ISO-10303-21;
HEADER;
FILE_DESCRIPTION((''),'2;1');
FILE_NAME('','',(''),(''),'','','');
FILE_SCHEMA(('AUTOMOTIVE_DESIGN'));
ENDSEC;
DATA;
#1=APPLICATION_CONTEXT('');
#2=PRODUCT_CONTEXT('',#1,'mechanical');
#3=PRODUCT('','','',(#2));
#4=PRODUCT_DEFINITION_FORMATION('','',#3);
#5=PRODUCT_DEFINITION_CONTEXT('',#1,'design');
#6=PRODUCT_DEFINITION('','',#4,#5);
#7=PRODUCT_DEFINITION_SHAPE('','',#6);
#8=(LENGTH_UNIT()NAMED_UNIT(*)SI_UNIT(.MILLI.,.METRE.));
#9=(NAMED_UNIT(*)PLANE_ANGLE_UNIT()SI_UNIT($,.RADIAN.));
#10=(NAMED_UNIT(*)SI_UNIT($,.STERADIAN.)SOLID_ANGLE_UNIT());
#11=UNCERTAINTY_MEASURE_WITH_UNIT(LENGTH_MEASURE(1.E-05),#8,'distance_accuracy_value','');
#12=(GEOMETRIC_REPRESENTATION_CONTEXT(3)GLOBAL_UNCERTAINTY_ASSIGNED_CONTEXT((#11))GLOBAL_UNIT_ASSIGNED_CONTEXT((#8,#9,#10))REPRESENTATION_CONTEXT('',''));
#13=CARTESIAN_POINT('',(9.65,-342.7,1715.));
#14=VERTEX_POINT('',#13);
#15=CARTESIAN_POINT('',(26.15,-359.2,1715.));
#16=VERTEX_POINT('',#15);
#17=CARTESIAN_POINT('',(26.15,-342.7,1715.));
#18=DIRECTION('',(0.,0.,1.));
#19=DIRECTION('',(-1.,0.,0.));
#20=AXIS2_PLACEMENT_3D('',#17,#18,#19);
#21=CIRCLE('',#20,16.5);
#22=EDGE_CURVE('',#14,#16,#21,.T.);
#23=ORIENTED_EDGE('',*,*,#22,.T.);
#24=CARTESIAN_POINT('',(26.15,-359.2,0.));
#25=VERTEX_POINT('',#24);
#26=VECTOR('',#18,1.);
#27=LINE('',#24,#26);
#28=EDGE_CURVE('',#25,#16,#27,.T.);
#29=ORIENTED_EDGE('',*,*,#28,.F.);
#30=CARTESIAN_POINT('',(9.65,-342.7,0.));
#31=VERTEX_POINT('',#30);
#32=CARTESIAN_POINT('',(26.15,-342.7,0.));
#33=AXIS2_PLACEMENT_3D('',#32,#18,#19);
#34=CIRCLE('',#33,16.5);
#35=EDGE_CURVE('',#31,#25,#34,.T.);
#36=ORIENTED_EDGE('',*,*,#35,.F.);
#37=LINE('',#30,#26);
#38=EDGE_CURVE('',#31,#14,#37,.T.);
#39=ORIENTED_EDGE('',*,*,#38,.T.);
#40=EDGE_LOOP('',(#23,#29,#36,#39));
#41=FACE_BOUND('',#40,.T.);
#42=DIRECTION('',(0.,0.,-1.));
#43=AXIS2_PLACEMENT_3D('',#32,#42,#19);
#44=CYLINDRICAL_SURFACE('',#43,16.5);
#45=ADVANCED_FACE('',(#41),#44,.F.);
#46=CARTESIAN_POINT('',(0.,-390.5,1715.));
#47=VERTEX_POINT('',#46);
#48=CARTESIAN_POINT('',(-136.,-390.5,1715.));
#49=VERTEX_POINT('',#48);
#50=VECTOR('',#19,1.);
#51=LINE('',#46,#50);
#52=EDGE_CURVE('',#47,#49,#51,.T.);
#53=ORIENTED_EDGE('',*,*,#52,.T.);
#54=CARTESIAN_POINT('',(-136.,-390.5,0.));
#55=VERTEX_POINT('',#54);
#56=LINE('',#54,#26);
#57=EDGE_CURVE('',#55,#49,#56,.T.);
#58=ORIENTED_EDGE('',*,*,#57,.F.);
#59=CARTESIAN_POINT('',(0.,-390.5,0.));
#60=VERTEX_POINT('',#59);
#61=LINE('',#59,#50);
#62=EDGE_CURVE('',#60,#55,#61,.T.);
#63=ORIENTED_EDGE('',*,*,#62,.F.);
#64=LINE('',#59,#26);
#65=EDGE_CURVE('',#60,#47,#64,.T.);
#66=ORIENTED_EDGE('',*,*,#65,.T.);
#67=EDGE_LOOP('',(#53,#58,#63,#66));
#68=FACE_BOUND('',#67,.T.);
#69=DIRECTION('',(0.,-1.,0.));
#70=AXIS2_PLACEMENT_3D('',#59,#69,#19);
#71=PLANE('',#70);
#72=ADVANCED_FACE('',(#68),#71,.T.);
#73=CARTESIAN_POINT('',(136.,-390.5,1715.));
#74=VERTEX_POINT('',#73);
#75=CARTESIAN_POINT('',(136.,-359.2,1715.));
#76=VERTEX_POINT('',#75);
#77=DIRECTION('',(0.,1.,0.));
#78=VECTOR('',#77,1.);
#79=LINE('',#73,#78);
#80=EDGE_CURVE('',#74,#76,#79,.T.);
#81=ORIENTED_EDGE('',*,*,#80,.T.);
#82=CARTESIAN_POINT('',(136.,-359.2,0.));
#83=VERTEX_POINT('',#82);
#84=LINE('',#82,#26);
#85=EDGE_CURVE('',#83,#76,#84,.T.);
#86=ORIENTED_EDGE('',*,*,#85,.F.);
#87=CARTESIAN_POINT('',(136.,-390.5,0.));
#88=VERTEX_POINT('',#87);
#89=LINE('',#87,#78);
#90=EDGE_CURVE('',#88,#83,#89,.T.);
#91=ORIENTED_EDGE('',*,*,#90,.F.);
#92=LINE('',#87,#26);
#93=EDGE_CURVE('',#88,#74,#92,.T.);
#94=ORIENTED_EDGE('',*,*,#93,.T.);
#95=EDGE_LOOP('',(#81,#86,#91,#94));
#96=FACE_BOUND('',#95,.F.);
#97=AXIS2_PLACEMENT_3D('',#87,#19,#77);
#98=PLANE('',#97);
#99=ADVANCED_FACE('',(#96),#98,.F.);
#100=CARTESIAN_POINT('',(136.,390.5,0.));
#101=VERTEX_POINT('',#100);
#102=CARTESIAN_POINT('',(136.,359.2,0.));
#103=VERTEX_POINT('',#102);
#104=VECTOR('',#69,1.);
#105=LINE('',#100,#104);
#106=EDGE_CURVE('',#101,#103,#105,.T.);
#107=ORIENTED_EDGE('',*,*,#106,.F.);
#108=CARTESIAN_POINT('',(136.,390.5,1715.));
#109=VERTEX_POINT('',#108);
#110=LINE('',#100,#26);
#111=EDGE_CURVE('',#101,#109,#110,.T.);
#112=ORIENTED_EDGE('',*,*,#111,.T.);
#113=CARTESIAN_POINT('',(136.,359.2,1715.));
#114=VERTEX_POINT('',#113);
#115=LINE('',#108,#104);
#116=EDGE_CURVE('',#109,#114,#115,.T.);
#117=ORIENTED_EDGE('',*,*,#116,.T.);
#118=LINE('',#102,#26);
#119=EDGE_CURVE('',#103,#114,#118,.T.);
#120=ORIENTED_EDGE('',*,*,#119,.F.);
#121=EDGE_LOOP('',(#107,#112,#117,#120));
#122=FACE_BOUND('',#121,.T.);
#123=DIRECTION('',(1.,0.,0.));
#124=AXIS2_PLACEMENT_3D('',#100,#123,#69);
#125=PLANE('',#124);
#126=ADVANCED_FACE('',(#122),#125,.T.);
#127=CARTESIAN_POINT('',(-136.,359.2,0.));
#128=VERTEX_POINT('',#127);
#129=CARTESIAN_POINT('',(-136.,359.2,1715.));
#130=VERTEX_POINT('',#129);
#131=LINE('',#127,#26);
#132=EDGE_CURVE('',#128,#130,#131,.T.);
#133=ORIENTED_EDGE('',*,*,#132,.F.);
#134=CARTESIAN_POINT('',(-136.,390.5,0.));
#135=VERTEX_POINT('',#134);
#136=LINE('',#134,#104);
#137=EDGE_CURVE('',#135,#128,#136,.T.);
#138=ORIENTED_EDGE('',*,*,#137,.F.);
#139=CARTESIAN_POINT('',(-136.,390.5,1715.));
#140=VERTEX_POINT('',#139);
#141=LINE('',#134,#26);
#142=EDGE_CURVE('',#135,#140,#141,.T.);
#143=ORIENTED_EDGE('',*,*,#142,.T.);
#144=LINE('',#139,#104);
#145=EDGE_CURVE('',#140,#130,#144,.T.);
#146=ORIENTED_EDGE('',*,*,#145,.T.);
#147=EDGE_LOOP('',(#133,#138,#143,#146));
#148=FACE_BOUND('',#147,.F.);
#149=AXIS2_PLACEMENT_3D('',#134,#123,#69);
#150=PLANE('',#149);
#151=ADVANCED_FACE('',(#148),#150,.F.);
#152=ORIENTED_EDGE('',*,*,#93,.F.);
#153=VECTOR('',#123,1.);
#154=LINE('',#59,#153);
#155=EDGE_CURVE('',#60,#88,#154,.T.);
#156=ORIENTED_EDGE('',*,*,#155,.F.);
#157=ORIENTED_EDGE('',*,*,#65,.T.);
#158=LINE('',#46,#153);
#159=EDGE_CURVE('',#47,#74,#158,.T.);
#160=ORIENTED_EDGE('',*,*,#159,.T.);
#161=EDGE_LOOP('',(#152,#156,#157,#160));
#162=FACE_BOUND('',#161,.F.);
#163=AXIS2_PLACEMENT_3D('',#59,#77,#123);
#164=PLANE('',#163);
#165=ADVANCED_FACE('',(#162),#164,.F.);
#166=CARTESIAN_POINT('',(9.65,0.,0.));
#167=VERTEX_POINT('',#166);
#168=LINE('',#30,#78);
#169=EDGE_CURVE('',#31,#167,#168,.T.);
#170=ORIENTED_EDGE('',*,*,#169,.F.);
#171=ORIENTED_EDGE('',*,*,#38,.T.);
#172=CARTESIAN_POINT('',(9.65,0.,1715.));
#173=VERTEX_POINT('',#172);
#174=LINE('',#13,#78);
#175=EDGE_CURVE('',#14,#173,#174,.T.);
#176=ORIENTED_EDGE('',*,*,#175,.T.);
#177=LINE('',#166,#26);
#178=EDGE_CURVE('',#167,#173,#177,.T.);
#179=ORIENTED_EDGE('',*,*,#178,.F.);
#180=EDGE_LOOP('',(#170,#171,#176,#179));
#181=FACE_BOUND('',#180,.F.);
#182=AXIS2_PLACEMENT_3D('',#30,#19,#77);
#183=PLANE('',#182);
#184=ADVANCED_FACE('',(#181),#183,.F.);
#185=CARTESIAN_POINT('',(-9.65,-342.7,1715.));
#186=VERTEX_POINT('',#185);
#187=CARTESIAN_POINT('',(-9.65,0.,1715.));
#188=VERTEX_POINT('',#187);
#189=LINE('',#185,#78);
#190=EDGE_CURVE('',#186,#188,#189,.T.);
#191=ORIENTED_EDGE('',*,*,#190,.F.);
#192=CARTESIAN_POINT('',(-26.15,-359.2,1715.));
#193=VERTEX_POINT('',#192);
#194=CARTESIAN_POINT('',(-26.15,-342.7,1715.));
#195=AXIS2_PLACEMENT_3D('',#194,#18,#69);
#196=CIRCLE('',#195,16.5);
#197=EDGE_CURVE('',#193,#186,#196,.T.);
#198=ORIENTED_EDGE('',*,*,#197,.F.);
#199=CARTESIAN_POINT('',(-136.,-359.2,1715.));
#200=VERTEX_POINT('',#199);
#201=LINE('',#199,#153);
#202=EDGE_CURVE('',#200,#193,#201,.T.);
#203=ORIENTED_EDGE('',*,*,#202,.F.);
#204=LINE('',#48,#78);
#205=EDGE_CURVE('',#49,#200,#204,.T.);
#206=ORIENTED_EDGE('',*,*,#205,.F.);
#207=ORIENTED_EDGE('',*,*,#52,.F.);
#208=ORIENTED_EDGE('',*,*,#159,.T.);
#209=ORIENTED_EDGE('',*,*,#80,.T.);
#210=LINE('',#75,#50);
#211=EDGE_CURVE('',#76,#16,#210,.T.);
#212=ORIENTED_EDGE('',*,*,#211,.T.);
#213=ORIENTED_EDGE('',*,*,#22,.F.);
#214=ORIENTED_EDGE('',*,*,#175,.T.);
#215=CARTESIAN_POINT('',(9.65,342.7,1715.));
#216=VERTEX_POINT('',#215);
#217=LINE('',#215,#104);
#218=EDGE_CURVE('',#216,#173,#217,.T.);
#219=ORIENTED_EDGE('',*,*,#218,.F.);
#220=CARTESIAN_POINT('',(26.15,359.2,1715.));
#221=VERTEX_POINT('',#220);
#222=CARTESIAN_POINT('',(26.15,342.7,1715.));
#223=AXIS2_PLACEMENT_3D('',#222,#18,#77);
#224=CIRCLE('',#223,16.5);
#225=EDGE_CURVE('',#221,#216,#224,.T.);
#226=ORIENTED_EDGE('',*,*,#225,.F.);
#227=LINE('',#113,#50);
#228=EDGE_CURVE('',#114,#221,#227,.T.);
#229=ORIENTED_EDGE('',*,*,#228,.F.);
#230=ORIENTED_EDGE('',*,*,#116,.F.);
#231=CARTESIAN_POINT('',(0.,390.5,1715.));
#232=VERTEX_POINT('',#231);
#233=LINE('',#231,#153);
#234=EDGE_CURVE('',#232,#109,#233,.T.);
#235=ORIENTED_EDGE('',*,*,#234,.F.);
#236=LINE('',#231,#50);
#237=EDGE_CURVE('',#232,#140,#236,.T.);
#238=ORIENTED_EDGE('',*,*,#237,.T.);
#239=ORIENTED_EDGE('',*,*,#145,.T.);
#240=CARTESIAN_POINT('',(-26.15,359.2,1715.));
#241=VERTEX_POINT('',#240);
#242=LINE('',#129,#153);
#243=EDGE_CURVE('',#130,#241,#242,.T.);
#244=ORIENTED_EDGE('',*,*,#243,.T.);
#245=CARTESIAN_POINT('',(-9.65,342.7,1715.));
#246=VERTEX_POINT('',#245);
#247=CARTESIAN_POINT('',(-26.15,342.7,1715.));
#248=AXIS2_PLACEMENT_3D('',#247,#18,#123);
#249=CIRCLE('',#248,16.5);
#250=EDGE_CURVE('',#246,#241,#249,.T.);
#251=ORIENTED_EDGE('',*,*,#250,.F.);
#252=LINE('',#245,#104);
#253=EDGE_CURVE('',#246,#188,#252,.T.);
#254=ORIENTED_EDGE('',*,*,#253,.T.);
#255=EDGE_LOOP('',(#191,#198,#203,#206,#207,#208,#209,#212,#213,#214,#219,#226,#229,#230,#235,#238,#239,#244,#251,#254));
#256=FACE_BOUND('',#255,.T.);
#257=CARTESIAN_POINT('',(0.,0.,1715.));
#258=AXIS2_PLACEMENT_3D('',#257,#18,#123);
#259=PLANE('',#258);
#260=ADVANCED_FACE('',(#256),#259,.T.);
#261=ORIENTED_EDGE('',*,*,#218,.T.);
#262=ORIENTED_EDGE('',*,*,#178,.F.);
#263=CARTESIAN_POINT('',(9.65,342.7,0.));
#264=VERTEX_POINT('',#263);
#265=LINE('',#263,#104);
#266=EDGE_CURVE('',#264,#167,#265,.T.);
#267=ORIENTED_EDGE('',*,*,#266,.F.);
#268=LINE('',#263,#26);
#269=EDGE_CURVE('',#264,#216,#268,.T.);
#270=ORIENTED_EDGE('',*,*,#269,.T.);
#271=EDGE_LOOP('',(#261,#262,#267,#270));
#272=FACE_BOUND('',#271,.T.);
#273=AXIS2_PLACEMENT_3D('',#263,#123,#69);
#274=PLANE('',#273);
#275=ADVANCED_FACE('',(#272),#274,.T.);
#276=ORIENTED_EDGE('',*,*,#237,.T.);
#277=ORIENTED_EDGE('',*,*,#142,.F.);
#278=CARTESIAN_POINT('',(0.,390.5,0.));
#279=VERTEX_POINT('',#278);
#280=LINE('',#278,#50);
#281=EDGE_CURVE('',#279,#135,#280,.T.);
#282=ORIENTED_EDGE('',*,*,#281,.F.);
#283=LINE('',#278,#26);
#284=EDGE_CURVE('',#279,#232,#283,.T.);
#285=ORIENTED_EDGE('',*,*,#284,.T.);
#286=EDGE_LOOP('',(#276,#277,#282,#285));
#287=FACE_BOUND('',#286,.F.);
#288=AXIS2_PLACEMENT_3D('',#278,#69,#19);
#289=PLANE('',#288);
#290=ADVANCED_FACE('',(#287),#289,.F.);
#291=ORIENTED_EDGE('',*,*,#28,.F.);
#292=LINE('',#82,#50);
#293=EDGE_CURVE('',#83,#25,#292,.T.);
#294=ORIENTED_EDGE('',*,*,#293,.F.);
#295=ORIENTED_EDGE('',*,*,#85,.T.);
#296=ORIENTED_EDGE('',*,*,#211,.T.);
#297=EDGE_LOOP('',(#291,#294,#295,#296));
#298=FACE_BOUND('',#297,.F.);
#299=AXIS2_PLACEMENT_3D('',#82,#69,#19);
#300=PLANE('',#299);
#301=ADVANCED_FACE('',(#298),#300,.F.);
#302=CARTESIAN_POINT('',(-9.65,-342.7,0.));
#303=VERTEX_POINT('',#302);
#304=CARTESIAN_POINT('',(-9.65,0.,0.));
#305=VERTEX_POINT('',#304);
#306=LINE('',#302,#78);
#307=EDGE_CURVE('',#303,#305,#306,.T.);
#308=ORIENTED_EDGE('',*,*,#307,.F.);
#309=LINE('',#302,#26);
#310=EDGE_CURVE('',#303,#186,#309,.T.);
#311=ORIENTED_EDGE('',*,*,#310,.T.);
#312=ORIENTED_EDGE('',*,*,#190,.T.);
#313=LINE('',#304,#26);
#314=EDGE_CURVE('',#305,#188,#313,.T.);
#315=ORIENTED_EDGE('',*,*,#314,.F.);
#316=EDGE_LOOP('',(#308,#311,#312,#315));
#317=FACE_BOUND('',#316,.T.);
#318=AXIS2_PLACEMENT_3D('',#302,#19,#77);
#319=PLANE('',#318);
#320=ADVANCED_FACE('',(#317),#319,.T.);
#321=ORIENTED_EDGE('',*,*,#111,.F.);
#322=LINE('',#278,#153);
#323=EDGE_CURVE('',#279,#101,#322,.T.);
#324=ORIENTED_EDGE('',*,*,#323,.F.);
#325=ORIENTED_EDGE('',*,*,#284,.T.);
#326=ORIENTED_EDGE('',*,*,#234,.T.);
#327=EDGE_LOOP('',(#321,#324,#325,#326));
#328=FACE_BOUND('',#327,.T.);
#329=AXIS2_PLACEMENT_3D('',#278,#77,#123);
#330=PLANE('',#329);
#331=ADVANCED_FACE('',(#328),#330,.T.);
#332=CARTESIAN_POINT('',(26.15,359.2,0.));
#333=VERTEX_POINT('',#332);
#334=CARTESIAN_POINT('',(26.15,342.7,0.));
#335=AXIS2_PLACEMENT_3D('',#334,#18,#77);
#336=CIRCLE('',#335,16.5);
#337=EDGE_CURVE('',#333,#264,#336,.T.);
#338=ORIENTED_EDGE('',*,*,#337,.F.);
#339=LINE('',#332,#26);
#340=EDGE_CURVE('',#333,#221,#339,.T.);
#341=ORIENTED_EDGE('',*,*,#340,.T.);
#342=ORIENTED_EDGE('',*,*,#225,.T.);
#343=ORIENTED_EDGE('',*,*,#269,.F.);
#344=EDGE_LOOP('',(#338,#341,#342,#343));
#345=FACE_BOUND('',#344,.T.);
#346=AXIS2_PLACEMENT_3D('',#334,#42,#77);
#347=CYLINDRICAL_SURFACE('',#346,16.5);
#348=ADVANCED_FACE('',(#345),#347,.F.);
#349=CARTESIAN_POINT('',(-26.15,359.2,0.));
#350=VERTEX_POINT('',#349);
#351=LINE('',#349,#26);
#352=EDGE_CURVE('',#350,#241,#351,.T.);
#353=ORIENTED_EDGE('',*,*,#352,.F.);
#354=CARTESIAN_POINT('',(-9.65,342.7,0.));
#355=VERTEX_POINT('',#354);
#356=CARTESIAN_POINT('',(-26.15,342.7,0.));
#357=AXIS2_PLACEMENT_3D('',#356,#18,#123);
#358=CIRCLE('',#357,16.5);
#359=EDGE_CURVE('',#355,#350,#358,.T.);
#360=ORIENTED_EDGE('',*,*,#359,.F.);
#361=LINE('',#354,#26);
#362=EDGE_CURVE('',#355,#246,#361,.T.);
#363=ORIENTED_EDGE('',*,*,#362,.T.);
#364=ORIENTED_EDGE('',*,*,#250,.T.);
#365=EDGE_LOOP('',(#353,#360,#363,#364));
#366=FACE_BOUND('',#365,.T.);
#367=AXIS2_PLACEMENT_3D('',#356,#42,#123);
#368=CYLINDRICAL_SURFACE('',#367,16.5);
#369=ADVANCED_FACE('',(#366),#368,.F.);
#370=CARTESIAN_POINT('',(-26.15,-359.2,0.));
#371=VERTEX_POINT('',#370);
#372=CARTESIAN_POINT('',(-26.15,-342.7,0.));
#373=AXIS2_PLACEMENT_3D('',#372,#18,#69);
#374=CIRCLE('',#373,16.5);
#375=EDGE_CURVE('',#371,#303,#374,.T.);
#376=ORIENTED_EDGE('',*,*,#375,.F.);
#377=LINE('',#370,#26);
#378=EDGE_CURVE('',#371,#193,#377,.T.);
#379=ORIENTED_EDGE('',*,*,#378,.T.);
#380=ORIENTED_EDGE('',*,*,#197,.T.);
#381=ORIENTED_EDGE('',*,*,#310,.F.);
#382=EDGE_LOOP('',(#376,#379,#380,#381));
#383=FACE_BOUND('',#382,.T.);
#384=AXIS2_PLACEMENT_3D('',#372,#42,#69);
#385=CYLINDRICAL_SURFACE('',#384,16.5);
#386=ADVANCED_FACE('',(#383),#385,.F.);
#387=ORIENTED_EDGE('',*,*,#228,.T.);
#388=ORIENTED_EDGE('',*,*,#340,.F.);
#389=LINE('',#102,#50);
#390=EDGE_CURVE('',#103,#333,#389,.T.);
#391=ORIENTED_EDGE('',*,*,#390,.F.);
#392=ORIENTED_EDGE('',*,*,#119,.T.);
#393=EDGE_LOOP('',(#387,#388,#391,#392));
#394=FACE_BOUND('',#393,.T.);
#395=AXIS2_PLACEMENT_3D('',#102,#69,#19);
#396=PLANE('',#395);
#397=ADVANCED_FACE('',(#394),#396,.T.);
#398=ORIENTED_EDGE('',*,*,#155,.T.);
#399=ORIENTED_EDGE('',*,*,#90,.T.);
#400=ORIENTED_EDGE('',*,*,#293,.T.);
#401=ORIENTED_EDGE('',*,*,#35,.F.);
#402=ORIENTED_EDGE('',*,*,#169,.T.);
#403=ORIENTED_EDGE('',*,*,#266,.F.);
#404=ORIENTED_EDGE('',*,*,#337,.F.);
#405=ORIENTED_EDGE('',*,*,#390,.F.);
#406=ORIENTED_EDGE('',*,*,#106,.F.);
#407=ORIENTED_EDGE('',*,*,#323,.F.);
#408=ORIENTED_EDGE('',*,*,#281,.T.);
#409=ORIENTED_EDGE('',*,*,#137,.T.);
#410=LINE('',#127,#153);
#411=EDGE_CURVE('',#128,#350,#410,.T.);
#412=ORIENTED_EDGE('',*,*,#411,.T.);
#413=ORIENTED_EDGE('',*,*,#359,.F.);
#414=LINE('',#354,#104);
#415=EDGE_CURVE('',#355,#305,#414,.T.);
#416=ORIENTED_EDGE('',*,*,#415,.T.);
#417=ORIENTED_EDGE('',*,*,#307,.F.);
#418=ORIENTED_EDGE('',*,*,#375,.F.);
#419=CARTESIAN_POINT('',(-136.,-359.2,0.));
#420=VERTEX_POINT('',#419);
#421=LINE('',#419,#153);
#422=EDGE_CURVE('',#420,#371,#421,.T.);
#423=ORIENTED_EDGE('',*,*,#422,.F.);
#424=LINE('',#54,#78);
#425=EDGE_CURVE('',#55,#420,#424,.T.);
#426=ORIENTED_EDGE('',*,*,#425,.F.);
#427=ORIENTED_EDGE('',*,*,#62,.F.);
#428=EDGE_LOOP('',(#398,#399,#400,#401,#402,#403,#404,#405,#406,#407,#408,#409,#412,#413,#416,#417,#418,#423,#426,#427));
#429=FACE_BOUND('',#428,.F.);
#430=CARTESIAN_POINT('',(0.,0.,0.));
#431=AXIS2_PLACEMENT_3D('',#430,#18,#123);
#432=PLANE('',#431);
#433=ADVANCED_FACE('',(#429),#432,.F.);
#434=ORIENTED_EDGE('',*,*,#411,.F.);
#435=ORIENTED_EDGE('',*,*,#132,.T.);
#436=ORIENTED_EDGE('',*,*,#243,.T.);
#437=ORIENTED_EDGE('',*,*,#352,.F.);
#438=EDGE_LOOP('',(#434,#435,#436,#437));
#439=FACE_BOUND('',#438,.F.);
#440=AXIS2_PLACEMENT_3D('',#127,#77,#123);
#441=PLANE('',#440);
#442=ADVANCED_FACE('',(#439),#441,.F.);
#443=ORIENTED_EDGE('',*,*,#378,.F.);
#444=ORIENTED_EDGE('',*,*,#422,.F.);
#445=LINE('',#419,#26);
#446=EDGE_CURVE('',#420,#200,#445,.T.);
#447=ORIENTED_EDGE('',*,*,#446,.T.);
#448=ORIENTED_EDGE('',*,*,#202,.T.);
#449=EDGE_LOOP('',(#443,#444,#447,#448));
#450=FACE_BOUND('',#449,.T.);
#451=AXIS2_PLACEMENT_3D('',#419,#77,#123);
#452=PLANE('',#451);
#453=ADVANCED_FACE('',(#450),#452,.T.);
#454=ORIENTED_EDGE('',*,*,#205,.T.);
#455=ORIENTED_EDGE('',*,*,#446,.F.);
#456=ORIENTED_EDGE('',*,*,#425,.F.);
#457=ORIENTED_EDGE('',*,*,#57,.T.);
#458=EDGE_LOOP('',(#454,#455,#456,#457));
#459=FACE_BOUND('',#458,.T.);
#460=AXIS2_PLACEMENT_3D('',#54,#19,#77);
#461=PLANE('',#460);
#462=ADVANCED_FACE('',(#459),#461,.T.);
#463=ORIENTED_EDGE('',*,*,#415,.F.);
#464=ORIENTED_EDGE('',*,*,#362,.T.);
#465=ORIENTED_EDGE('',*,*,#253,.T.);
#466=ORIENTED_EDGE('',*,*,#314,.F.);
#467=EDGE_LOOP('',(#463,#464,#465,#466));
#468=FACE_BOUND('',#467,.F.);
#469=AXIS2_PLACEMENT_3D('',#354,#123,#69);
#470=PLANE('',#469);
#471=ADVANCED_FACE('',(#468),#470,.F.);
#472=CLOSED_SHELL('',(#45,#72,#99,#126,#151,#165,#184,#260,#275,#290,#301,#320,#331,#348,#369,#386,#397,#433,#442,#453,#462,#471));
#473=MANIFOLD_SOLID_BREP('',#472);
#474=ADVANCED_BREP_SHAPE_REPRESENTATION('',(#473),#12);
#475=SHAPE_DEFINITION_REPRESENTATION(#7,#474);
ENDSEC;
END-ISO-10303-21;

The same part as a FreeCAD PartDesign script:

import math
import FreeCAD as App
import Part
import Sketcher
from FreeCAD import Vector

doc = App.newDocument("Part")
body = doc.addObject("PartDesign::Body", "Body")

# Sketch on XY plane
sketch1 = body.newObject("Sketcher::SketchObject", "Sketch")
sketch1.AttachmentSupport = (doc.getObject("XY_Plane"), [""])
sketch1.MapMode = "FlatFace"
sketch1.addGeometry(Part.LineSegment(Vector(-136, -359.2, 0), Vector(-136, -390.5, 0)), False)
sketch1.addGeometry(Part.LineSegment(Vector(-136, -390.5, 0), Vector(136, -390.5, 0)), False)
sketch1.addGeometry(Part.LineSegment(Vector(136, -390.5, 0), Vector(136, -359.2, 0)), False)
sketch1.addGeometry(Part.LineSegment(Vector(136, -359.2, 0), Vector(26.15, -359.2, 0)), False)
sketch1.addGeometry(Part.ArcOfCircle(Part.Circle(Vector(26.15, -342.7, 0), Vector(0, 0, 1), 16.5), math.radians(180), math.radians(270)), False)
sketch1.addGeometry(Part.LineSegment(Vector(9.65, -342.7, 0), Vector(9.65, 342.7, 0)), False)
sketch1.addGeometry(Part.ArcOfCircle(Part.Circle(Vector(26.15, 342.7, 0), Vector(0, 0, 1), 16.5), math.radians(90), math.radians(180)), False)
sketch1.addGeometry(Part.LineSegment(Vector(26.15, 359.2, 0), Vector(136, 359.2, 0)), False)
sketch1.addGeometry(Part.LineSegment(Vector(136, 359.2, 0), Vector(136, 390.5, 0)), False)
sketch1.addGeometry(Part.LineSegment(Vector(136, 390.5, 0), Vector(-136, 390.5, 0)), False)
sketch1.addGeometry(Part.LineSegment(Vector(-136, 390.5, 0), Vector(-136, 359.2, 0)), False)
sketch1.addGeometry(Part.LineSegment(Vector(-136, 359.2, 0), Vector(-26.15, 359.2, 0)), False)
sketch1.addGeometry(Part.ArcOfCircle(Part.Circle(Vector(-26.15, 342.7, 0), Vector(0, 0, 1), 16.5), math.radians(0), math.radians(90)), False)
sketch1.addGeometry(Part.LineSegment(Vector(-9.65, 342.7, 0), Vector(-9.65, -342.7, 0)), False)
sketch1.addGeometry(Part.ArcOfCircle(Part.Circle(Vector(-26.15, -342.7, 0), Vector(0, 0, 1), 16.5), math.radians(-90), math.radians(0)), False)
sketch1.addGeometry(Part.LineSegment(Vector(-26.15, -359.2, 0), Vector(-136, -359.2, 0)), False)
sketch1.addConstraint(Sketcher.Constraint("Coincident", 0, 2, 1, 1))
sketch1.addConstraint(Sketcher.Constraint("Coincident", 1, 2, 2, 1))
sketch1.addConstraint(Sketcher.Constraint("Coincident", 2, 2, 3, 1))
sketch1.addConstraint(Sketcher.Constraint("Tangent", 3, 2, 4, 2))
sketch1.addConstraint(Sketcher.Constraint("Tangent", 4, 1, 5, 1))
sketch1.addConstraint(Sketcher.Constraint("Tangent", 5, 2, 6, 2))
sketch1.addConstraint(Sketcher.Constraint("Tangent", 6, 1, 7, 1))
sketch1.addConstraint(Sketcher.Constraint("Coincident", 7, 2, 8, 1))
sketch1.addConstraint(Sketcher.Constraint("Coincident", 8, 2, 9, 1))
sketch1.addConstraint(Sketcher.Constraint("Coincident", 9, 2, 10, 1))
sketch1.addConstraint(Sketcher.Constraint("Coincident", 10, 2, 11, 1))
sketch1.addConstraint(Sketcher.Constraint("Tangent", 11, 2, 12, 2))
sketch1.addConstraint(Sketcher.Constraint("Tangent", 12, 1, 13, 1))
sketch1.addConstraint(Sketcher.Constraint("Tangent", 13, 2, 14, 2))
sketch1.addConstraint(Sketcher.Constraint("Tangent", 14, 1, 15, 1))
sketch1.addConstraint(Sketcher.Constraint("Coincident", 15, 2, 0, 1))
sketch1.addConstraint(Sketcher.Constraint("Vertical", 0))
sketch1.addConstraint(Sketcher.Constraint("Horizontal", 1))
sketch1.addConstraint(Sketcher.Constraint("Vertical", 2))
sketch1.addConstraint(Sketcher.Constraint("Horizontal", 3))
sketch1.addConstraint(Sketcher.Constraint("Vertical", 5))
sketch1.addConstraint(Sketcher.Constraint("Horizontal", 7))
sketch1.addConstraint(Sketcher.Constraint("Vertical", 8))
sketch1.addConstraint(Sketcher.Constraint("Horizontal", 9))
sketch1.addConstraint(Sketcher.Constraint("Vertical", 10))
sketch1.addConstraint(Sketcher.Constraint("Horizontal", 11))
sketch1.addConstraint(Sketcher.Constraint("Vertical", 13))
sketch1.addConstraint(Sketcher.Constraint("Horizontal", 15))
sketch1.addConstraint(Sketcher.Constraint("Equal", 4, 6))
sketch1.addConstraint(Sketcher.Constraint("Equal", 6, 12))
sketch1.addConstraint(Sketcher.Constraint("Equal", 12, 14))
sketch1.addConstraint(Sketcher.Constraint("Symmetric", 4, 3, 12, 3, -1, 1))
sketch1.addConstraint(Sketcher.Constraint("Symmetric", 0, 2, 8, 2, -1, 1))
sketch1.addConstraint(Sketcher.Constraint("Symmetric", 7, 2, 10, 2, -2))
sketch1.addConstraint(Sketcher.Constraint("Symmetric", 2, 2, 15, 2, -2))
sketch1.addConstraint(Sketcher.Constraint("Radius", 4, 16.5))
sketch1.addConstraint(Sketcher.Constraint("DistanceY", 0, 2, 0, 1, 31.3))
sketch1.addConstraint(Sketcher.Constraint("DistanceX", 0, 2, -1, 1, 136.0))
sketch1.addConstraint(Sketcher.Constraint("DistanceY", 0, 2, -1, 1, 390.5))
sketch1.addConstraint(Sketcher.Constraint("DistanceX", -1, 1, 4, 1, 9.65))
pad1 = body.newObject("PartDesign::Pad", "Pad")
pad1.Profile = sketch1
pad1.Length = 1715

doc.recompute()
